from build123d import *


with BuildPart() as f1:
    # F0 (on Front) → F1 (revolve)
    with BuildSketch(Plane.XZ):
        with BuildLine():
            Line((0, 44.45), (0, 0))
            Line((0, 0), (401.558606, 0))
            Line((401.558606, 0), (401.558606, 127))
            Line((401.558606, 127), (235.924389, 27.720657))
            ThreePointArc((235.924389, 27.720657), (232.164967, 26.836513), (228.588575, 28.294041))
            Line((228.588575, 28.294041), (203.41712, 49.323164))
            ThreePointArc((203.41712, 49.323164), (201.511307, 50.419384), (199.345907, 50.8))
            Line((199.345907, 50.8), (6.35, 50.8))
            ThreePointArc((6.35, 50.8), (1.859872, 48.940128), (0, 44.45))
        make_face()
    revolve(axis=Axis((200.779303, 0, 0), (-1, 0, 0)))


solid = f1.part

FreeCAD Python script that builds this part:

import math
import FreeCAD as App
import Part
import Sketcher
Q = App.Units.Quantity

doc = App.newDocument("Part")
body = doc.addObject("PartDesign::Body", "Body")

# Sketch on XZ plane
sketch1 = body.newObject("Sketcher::SketchObject", "Sketch")
sketch1.AttachmentSupport = (doc.getObject("XZ_Plane"), [""])
sketch1.MapMode = "FlatFace"
sketch1.addGeometry(Part.LineSegment(App.Vector(0, 44.45, 0), App.Vector(0, 0, 0)), False)
sketch1.addGeometry(Part.LineSegment(App.Vector(0, 0, 0), App.Vector(401.558606, 0, 0)), False)
sketch1.addGeometry(Part.LineSegment(App.Vector(401.558606, 0, 0), App.Vector(401.558606, 127, 0)), False)
sketch1.addGeometry(Part.LineSegment(App.Vector(401.558606, 127, 0), App.Vector(235.924389, 27.720657, 0)), False)
sketch1.addGeometry(Part.ArcOfCircle(Part.Circle(App.Vector(232.659788, 33.167203, 0), App.Vector(0, 0, 1), 6.349998), math.radians(-129.876585), math.radians(-59.06198)), False)
sketch1.addGeometry(Part.LineSegment(App.Vector(228.588575, 28.294041, 0), App.Vector(203.41712, 49.323164, 0)), False)
sketch1.addGeometry(Part.ArcOfCircle(Part.Circle(App.Vector(199.345908, 44.450001, 0), App.Vector(0, 0, 1), 6.349999), math.radians(50.123426), math.radians(90.000007)), False)
sketch1.addGeometry(Part.LineSegment(App.Vector(199.345907, 50.8, 0), App.Vector(6.35, 50.8, 0)), False)
sketch1.addGeometry(Part.ArcOfCircle(Part.Circle(App.Vector(6.35, 44.45, 0), App.Vector(0, 0, 1), 6.35), math.radians(90.000002), math.radians(179.999998)), False)
sketch1.addConstraint(Sketcher.Constraint("Coincident", 0, 2, 1, 1))
sketch1.addConstraint(Sketcher.Constraint("Coincident", 1, 2, 2, 1))
sketch1.addConstraint(Sketcher.Constraint("Coincident", 2, 2, 3, 1))
sketch1.addConstraint(Sketcher.Constraint("Coincident", 3, 2, 4, 2))
sketch1.addConstraint(Sketcher.Constraint("Coincident", 4, 1, 5, 1))
sketch1.addConstraint(Sketcher.Constraint("Coincident", 5, 2, 6, 1))
sketch1.addConstraint(Sketcher.Constraint("Coincident", 6, 2, 7, 1))
sketch1.addConstraint(Sketcher.Constraint("Coincident", 7, 2, 8, 1))
sketch1.addConstraint(Sketcher.Constraint("Coincident", 8, 2, 0, 1))
sketch1.addConstraint(Sketcher.Constraint("Vertical", 0))
sketch1.addConstraint(Sketcher.Constraint("Horizontal", 1))
sketch1.addConstraint(Sketcher.Constraint("Vertical", 2))
sketch1.addConstraint(Sketcher.Constraint("Horizontal", 7))
sketch1.addConstraint(Sketcher.Constraint("Coincident", 0, 2, -1, 1))
sketch1.addConstraint(Sketcher.Constraint("DistanceY", 2, 1, 2, 2, Q("5 in")))
sketch1.addConstraint(Sketcher.Constraint("Radius", 4, Q("0.2499999 in")))
sketch1.addConstraint(Sketcher.Constraint("Radius", 6, Q("0.2499999 in")))
sketch1.addConstraint(Sketcher.Constraint("Radius", 8, Q("0.25 in")))
sketch1.addConstraint(Sketcher.Constraint("DistanceY", -1, 1, 6, 2, Q("2 in")))
sketch1.addConstraint(Sketcher.Constraint("DistanceY", 0, 2, 0, 1, Q("1.75 in")))
sketch1.addConstraint(Sketcher.Constraint("DistanceX", -1, 1, 7, 2, Q("0.25 in")))
sketch1.addConstraint(Sketcher.Constraint("DistanceY", 4, 3, 6, 3, Q("11.282799 mm")))
sketch1.addConstraint(Sketcher.Constraint("DistanceX", 6, 3, 1, 2, Q("202.212698 mm")))
sketch1.addConstraint(Sketcher.Constraint("DistanceX", 4, 3, 3, 2, Q("3.264601 mm")))
sketch1.addConstraint(Sketcher.Constraint("Distance", 3, Q("193.108989 mm")))
sketch1.addConstraint(Sketcher.Constraint("Distance", 5, Q("32.799789 mm")))
sketch1.addConstraint(Sketcher.Constraint("DistanceX", 1, 1, 1, 2, Q("401.558606 mm")))
sketch1.addConstraint(Sketcher.Constraint("DistanceX", 7, 2, 7, 1, Q("192.995907 mm")))
sketch1.addConstraint(Sketcher.Constraint("DistanceY", -1, 1, 4, 1, Q("28.294041 mm")))
revolution = body.newObject("PartDesign::Revolution", "Revolution")
revolution.Profile = sketch1
revolution.ReferenceAxis = (sketch1, ["H_Axis"])
revolution.Angle = 360

doc.recompute()
